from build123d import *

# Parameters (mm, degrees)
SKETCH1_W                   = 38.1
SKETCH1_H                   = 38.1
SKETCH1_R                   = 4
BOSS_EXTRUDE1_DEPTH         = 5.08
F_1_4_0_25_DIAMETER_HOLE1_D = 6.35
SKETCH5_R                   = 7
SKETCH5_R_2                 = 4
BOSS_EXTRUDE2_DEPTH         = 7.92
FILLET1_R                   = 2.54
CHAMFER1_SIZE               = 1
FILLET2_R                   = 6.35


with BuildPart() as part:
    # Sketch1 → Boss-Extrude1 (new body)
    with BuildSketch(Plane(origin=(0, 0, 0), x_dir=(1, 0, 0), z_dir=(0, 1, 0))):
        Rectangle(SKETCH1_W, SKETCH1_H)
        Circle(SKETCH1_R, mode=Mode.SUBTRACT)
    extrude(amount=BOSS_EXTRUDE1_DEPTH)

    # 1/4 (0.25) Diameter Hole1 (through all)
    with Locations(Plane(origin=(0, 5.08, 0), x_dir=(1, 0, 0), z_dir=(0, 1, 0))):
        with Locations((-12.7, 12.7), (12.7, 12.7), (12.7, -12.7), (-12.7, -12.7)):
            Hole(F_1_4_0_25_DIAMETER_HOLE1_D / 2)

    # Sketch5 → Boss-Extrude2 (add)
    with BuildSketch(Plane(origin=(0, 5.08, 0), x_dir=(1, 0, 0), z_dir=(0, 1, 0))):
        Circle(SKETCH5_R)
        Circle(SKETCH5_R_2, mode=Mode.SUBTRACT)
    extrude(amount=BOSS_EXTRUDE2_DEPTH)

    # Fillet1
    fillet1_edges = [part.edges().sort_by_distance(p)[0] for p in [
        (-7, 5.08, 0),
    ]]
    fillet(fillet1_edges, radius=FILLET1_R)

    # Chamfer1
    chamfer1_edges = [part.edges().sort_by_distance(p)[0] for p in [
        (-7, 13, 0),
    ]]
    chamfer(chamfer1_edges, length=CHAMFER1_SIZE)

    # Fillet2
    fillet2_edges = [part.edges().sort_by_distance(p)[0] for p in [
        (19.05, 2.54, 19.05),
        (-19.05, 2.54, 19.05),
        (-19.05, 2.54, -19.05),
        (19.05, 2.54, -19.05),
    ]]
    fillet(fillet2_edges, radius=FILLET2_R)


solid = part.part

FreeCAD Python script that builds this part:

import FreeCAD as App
import Part
import Sketcher
Q = App.Units.Quantity


def edges_at(feature, points):
    """Names of the edges that pass closest to the given points."""
    edges = feature.Shape.Edges
    near = lambda p: min(range(len(edges)), key=lambda i: edges[i].distToShape(Part.Vertex(*p))[0])
    return sorted({f"Edge{near(p) + 1}" for p in points})

doc = App.newDocument("Part")
body = doc.addObject("PartDesign::Body", "Body")

# Sketch on XZ plane
sketch1 = body.newObject("Sketcher::SketchObject", "Sketch")
sketch1.AttachmentSupport = (doc.getObject("XZ_Plane"), [""])
sketch1.MapMode = "FlatFace"
sketch1.addGeometry([
    Part.LineSegment(App.Vector(-19.1, -19.1, 0), App.Vector(-19.1, 19.1, 0)),  # 0
    Part.LineSegment(App.Vector(-19.1, 19.1, 0), App.Vector(19.1, 19.1, 0)),  # 1
    Part.LineSegment(App.Vector(19.1, 19.1, 0), App.Vector(19.1, -19.1, 0)),  # 2
    Part.LineSegment(App.Vector(19.1, -19.1, 0), App.Vector(-19.1, -19.1, 0)),  # 3
    Part.Circle(App.Vector(0, 0, 0), App.Vector(0, 0, 1), 4),  # 4
], False)
sketch1.addConstraint([
    Sketcher.Constraint("Coincident", 0, 2, 1, 1),
    Sketcher.Constraint("Coincident", 1, 2, 2, 1),
    Sketcher.Constraint("Coincident", 2, 2, 3, 1),
    Sketcher.Constraint("Coincident", 3, 2, 0, 1),
    Sketcher.Constraint("Vertical", 0),
    Sketcher.Constraint("Horizontal", 1),
    Sketcher.Constraint("Vertical", 2),
    Sketcher.Constraint("Horizontal", 3),
    Sketcher.Constraint("Coincident", 4, 3, -1, 1),
    Sketcher.Constraint("Symmetric", 0, 2, 2, 2, -1, 1),
    Sketcher.Constraint("Equal", 3, 0),
    Sketcher.Constraint("DistanceX", 1, 1, 1, 2, Q("1.5 in")),
    Sketcher.Constraint("Diameter", 4, 8.0),
])
pad1 = body.newObject("PartDesign::Pad", "Pad")
pad1.Profile = sketch1
pad1.Length = Q("0.2 in")
pad1.Reversed = True

# Sketch on XZ plane
sketch2 = body.newObject("Sketcher::SketchObject", "Sketch001")
sketch2.AttachmentSupport = (doc.getObject("XZ_Plane"), [""])
sketch2.MapMode = "FlatFace"
sketch2.AttachmentOffset = App.Placement(App.Vector(0, 0, -0.2 * 25.4), App.Rotation())
sketch2.addGeometry([
    Part.Circle(App.Vector(-12.7, -12.7, 0), App.Vector(0, 0, 1), 3.2),
    Part.Circle(App.Vector(12.7, -12.7, 0), App.Vector(0, 0, 1), 3.2),
    Part.Circle(App.Vector(12.7, 12.7, 0), App.Vector(0, 0, 1), 3.2),
    Part.Circle(App.Vector(-12.7, 12.7, 0), App.Vector(0, 0, 1), 3.2),
], False)
sketch2.addConstraint([
    Sketcher.Constraint("Equal", 0, 1),
    Sketcher.Constraint("Equal", 1, 2),
    Sketcher.Constraint("Equal", 2, 3),
    Sketcher.Constraint("Symmetric", 0, 3, 2, 3, -1, 1),
    Sketcher.Constraint("Symmetric", 1, 3, 3, 3, -1, 1),
    Sketcher.Constraint("Symmetric", 0, 3, 1, 3, -2),
    Sketcher.Constraint("Diameter", 0, Q("0.25 in")),
    Sketcher.Constraint("DistanceX", 0, 3, 1, 3, Q("1 in")),
    Sketcher.Constraint("DistanceY", 1, 3, 2, 3, Q("1 in")),
])
doc.recompute()
hole = body.newObject("PartDesign::Hole", "Hole")
hole.Profile = sketch2
hole.ThreadType = "None"
hole.Diameter = Q("0.25 in")
hole.DepthType = "ThroughAll"
hole.Reversed = True

# Sketch on XZ plane
sketch3 = body.newObject("Sketcher::SketchObject", "Sketch002")
sketch3.AttachmentSupport = (doc.getObject("XZ_Plane"), [""])
sketch3.MapMode = "FlatFace"
sketch3.AttachmentOffset = App.Placement(App.Vector(0, 0, -0.2 * 25.4), App.Rotation())
sketch3.addGeometry([
    Part.Circle(App.Vector(0, 0, 0), App.Vector(0, 0, 1), 7),
    Part.Circle(App.Vector(0, 0, 0), App.Vector(0, 0, 1), 4),
], False)
sketch3.addConstraint([
    Sketcher.Constraint("Coincident", 0, 3, -1, 1),
    Sketcher.Constraint("Coincident", 1, 3, -1, 1),
    Sketcher.Constraint("Diameter", 0, 14.0),
    Sketcher.Constraint("Diameter", 1, 8.0),
])
pad2 = body.newObject("PartDesign::Pad", "Pad001")
pad2.Profile = sketch3
pad2.Length = 7.92
pad2.Reversed = True
doc.recompute()

fillet = body.newObject("PartDesign::Fillet", "Fillet")
fillet.Base = (pad2, edges_at(pad2, [(-7, 5.08, 0)]))
fillet.Radius = Q("0.1 in")
doc.recompute()

chamfer = body.newObject("PartDesign::Chamfer", "Chamfer")
chamfer.Base = (fillet, edges_at(fillet, [(-7, 13, 0)]))
chamfer.Size = 1
doc.recompute()

fillet2 = body.newObject("PartDesign::Fillet", "Fillet001")
fillet2.Base = (chamfer, edges_at(chamfer, [
    (19.05, 2.54, 19.05),
    (-19.05, 2.54, 19.05),
    (-19.05, 2.54, -19.05),
    (19.05, 2.54, -19.05),
]))
fillet2.Radius = Q("0.25 in")

doc.recompute()
